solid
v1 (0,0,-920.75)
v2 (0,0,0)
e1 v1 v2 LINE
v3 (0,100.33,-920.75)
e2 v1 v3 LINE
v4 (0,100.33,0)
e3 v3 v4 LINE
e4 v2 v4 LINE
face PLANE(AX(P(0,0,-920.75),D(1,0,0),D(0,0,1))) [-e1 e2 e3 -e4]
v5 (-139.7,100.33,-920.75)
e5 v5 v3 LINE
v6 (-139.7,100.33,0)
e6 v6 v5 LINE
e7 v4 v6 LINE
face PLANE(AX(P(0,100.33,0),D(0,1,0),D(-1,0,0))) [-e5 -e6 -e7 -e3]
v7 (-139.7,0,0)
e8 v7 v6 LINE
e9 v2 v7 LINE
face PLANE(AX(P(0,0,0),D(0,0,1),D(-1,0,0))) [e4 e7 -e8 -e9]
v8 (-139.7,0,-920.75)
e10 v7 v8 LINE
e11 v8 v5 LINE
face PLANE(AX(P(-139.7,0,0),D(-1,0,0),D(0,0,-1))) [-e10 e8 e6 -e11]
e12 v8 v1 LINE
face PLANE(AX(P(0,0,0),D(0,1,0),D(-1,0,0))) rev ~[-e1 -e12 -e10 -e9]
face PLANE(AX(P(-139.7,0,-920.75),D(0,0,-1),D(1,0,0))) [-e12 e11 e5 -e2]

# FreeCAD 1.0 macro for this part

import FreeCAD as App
import Part
import Sketcher

V = App.Vector
Q = App.Units.Quantity

doc = App.newDocument("Part")
body = doc.addObject("PartDesign::Body", "Body")

sketch1 = doc.addObject("Sketcher::SketchObject", "Sketch")
body.addObject(sketch1)
sketch1.AttachmentSupport = (doc.XZ_Plane, [""])
sketch1.MapMode = "FlatFace"
sketch1.addGeometry([
    Part.LineSegment(V(-139.7, 0, 0), V(0, 0, 0)),
    Part.LineSegment(V(0, 0, 0), V(0, -920.75, 0)),
    Part.LineSegment(V(0, -920.75, 0), V(-139.7, -920.75, 0)),
    Part.LineSegment(V(-139.7, -920.75, 0), V(-139.7, 0, 0)),
], False)
sketch1.addConstraint([
    Sketcher.Constraint("Coincident", 0, 2, 1, 1),
    Sketcher.Constraint("Coincident", 1, 2, 2, 1),
    Sketcher.Constraint("Coincident", 2, 2, 3, 1),
    Sketcher.Constraint("Coincident", 3, 2, 0, 1),
    Sketcher.Constraint("Horizontal", 0),
    Sketcher.Constraint("Vertical", 1),
    Sketcher.Constraint("Horizontal", 2),
    Sketcher.Constraint("Vertical", 3),
    Sketcher.Constraint("Coincident", 0, 2, -1, 1),
    Sketcher.Constraint("DistanceX", 0, 1, 0, 2, Q("5.5 in")),
    Sketcher.Constraint("DistanceY", 1, 2, 1, 1, Q("36.25 in")),
])
pad1 = doc.addObject("PartDesign::Pad", "Pad")
body.addObject(pad1)
pad1.Profile = sketch1
pad1.Length = Q("3.95 in")
pad1.Reversed = True

doc.recompute()
